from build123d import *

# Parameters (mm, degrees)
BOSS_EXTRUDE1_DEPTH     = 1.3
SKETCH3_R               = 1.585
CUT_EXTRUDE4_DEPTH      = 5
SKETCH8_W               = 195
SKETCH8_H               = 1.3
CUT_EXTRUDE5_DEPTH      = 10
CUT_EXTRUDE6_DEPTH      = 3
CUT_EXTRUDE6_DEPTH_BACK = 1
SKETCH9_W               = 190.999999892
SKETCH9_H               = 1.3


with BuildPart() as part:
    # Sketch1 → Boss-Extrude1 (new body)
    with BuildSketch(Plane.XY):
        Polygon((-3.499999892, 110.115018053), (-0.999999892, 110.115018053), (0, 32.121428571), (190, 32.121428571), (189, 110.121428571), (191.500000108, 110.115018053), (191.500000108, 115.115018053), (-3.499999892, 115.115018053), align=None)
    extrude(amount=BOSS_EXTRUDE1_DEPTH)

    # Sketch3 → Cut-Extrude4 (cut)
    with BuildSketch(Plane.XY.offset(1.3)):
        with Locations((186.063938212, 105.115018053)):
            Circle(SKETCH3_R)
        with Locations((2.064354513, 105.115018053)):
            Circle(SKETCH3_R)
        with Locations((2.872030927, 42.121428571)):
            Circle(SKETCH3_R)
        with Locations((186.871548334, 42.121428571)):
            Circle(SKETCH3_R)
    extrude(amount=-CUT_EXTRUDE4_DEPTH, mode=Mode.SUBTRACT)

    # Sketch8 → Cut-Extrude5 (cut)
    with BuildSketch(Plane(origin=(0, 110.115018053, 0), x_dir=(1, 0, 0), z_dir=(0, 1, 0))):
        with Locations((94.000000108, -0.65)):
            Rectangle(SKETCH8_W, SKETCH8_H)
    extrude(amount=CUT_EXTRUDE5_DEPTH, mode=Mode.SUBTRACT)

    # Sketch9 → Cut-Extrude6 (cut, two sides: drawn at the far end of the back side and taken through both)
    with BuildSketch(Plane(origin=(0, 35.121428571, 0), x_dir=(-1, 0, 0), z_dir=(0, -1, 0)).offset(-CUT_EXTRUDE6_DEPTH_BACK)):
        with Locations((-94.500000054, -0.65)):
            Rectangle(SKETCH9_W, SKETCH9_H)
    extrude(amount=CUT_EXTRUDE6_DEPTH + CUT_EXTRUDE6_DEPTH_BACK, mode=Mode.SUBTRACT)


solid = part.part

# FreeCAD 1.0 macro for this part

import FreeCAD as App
import Part
import Sketcher
Q = App.Units.Quantity

doc = App.newDocument("Part")
params = doc.addObject("Spreadsheet::Sheet", "Params")
for row, (alias, value) in enumerate([
    ("sketch1_width", "190 mm"),
    ("sketch1_width2", "195 mm"),
    ("sketch1_height", "5 mm"),
    ("sketch1_height2", "5 mm"),
    ("sketch1_length", "78 mm"),
    ("pad1_length", "1.3 mm"),
    ("sketch2_diameter", "3.17 mm"),
    ("pocket1_length", "5 mm"),
    ("sketch3_width", "195 mm"),
    ("sketch3_height", "1.3 mm"),
    ("pocket2_length", "10 mm"),
    ("sketch4_width", "191 mm"),
    ("sketch4_height", "1.3 mm"),
    ("pocket3_length", "3 mm"),
    ("pocket3_length2", "1 mm"),
], start=1):
    params.set(f"A{row}", alias)
    params.set(f"B{row}", "=" + value)
    params.setAlias(f"B{row}", alias)

body = doc.addObject("PartDesign::Body", "Body")

# Sketch on XY plane
sketch1 = body.newObject("Sketcher::SketchObject", "Sketch")
sketch1.AttachmentSupport = (doc.getObject("XY_Plane"), [""])
sketch1.MapMode = "FlatFace"
sketch1.addGeometry(Part.LineSegment(App.Vector(-3.5, 110.115018, 0), App.Vector(-1, 110.115018, 0)), False)
sketch1.addGeometry(Part.LineSegment(App.Vector(-1, 110.115018, 0), App.Vector(0, 32.121429, 0)), False)
sketch1.addGeometry(Part.LineSegment(App.Vector(0, 32.121429, 0), App.Vector(190, 32.121429, 0)), False)
sketch1.addGeometry(Part.LineSegment(App.Vector(190, 32.121429, 0), App.Vector(189, 110.121429, 0)), False)
sketch1.addGeometry(Part.LineSegment(App.Vector(189, 110.121429, 0), App.Vector(191.5, 110.115018, 0)), False)
sketch1.addGeometry(Part.LineSegment(App.Vector(191.5, 110.115018, 0), App.Vector(191.5, 115.115018, 0)), False)
sketch1.addGeometry(Part.LineSegment(App.Vector(191.5, 115.115018, 0), App.Vector(-3.5, 115.115018, 0)), False)
sketch1.addGeometry(Part.LineSegment(App.Vector(-3.5, 115.115018, 0), App.Vector(-3.5, 110.115018, 0)), False)
sketch1.addConstraint(Sketcher.Constraint("Coincident", 0, 2, 1, 1))
sketch1.addConstraint(Sketcher.Constraint("Coincident", 1, 2, 2, 1))
sketch1.addConstraint(Sketcher.Constraint("Coincident", 2, 2, 3, 1))
sketch1.addConstraint(Sketcher.Constraint("Coincident", 3, 2, 4, 1))
sketch1.addConstraint(Sketcher.Constraint("Coincident", 4, 2, 5, 1))
sketch1.addConstraint(Sketcher.Constraint("Coincident", 5, 2, 6, 1))
sketch1.addConstraint(Sketcher.Constraint("Coincident", 6, 2, 7, 1))
sketch1.addConstraint(Sketcher.Constraint("Coincident", 7, 2, 0, 1))
sketch1.addConstraint(Sketcher.Constraint("Horizontal", 0))
sketch1.addConstraint(Sketcher.Constraint("Horizontal", 2))
sketch1.addConstraint(Sketcher.Constraint("Vertical", 5))
sketch1.addConstraint(Sketcher.Constraint("Horizontal", 6))
sketch1.addConstraint(Sketcher.Constraint("Vertical", 7))
sketch1.addConstraint(Sketcher.Constraint("PointOnObject", 1, 2, -2))
sketch1.addConstraint(Sketcher.Constraint("DistanceX", 2, 1, 2, 2, Q("190 mm")))
sketch1.addConstraint(Sketcher.Constraint("DistanceX", 6, 2, 6, 1, Q("195 mm")))
sketch1.addConstraint(Sketcher.Constraint("DistanceY", 5, 1, 5, 2, Q("5 mm")))
sketch1.addConstraint(Sketcher.Constraint("DistanceY", 7, 2, 7, 1, Q("5 mm")))
sketch1.addConstraint(Sketcher.Constraint("Distance", 1, Q("78 mm")))
sketch1.addConstraint(Sketcher.Constraint("DistanceX", 0, 1, 0, 2, Q("2.5 mm")))
sketch1.addConstraint(Sketcher.Constraint("DistanceX", 0, 2, -1, 1, Q("1 mm")))
sketch1.addConstraint(Sketcher.Constraint("DistanceX", -1, 1, 3, 2, Q("189 mm")))
sketch1.addConstraint(Sketcher.Constraint("DistanceY", 2, 2, 3, 2, Q("78 mm")))
sketch1.addConstraint(Sketcher.Constraint("DistanceY", -1, 1, 0, 2, Q("110.115018 mm")))
sketch1.setExpression("Constraints[14]", "Params.sketch1_width")
sketch1.setExpression("Constraints[15]", "Params.sketch1_width2")
sketch1.setExpression("Constraints[16]", "Params.sketch1_height")
sketch1.setExpression("Constraints[17]", "Params.sketch1_height2")
sketch1.setExpression("Constraints[18]", "Params.sketch1_length")
pad1 = body.newObject("PartDesign::Pad", "Pad")
pad1.Profile = sketch1
pad1.setExpression("Length", "Params.pad1_length")

# Sketch on XY plane
sketch2 = body.newObject("Sketcher::SketchObject", "Sketch001")
sketch2.AttachmentSupport = (doc.getObject("XY_Plane"), [""])
sketch2.MapMode = "FlatFace"
sketch2.AttachmentOffset = App.Placement(App.Vector(0, 0, 1.3), App.Rotation())
sketch2.addGeometry(Part.Circle(App.Vector(186.1, 105.1, 0), App.Vector(0, 0, 1), 1.6), False)
sketch2.addGeometry(Part.Circle(App.Vector(2.1, 105.1, 0), App.Vector(0, 0, 1), 1.6), False)
sketch2.addGeometry(Part.Circle(App.Vector(2.9, 42.1, 0), App.Vector(0, 0, 1), 1.6), False)
sketch2.addGeometry(Part.Circle(App.Vector(186.9, 42.1, 0), App.Vector(0, 0, 1), 1.6), False)
sketch2.addConstraint(Sketcher.Constraint("Equal", 0, 1))
sketch2.addConstraint(Sketcher.Constraint("Equal", 1, 2))
sketch2.addConstraint(Sketcher.Constraint("Equal", 2, 3))
sketch2.addConstraint(Sketcher.Constraint("Horizontal", 0, 3, 1, 3))
sketch2.addConstraint(Sketcher.Constraint("Horizontal", 2, 3, 3, 3))
sketch2.addConstraint(Sketcher.Constraint("Diameter", 0, Q("3.17 mm")))
sketch2.addConstraint(Sketcher.Constraint("DistanceX", -1, 1, 0, 3, Q("186.063938 mm")))
sketch2.addConstraint(Sketcher.Constraint("DistanceY", -1, 1, 0, 3, Q("105.115018 mm")))
sketch2.addConstraint(Sketcher.Constraint("DistanceX", -1, 1, 2, 3, Q("2.872031 mm")))
sketch2.addConstraint(Sketcher.Constraint("DistanceY", -1, 1, 2, 3, Q("42.121429 mm")))
sketch2.addConstraint(Sketcher.Constraint("DistanceX", -1, 1, 3, 3, Q("186.871548 mm")))
sketch2.addConstraint(Sketcher.Constraint("DistanceX", -1, 1, 1, 3, Q("2.064355 mm")))
sketch2.setExpression("Constraints[5]", "Params.sketch2_diameter")
pocket1 = body.newObject("PartDesign::Pocket", "Pocket")
pocket1.Profile = sketch2
pocket1.setExpression("Length", "Params.pocket1_length")

# Sketch on XZ plane
sketch3 = body.newObject("Sketcher::SketchObject", "Sketch002")
sketch3.AttachmentSupport = (doc.getObject("XZ_Plane"), [""])
sketch3.MapMode = "FlatFace"
sketch3.AttachmentOffset = App.Placement(App.Vector(0, 0, -110.115018), App.Rotation())
sketch3.addGeometry(Part.LineSegment(App.Vector(-3.5, 0, 0), App.Vector(-3.5, 1.3, 0)), False)
sketch3.addGeometry(Part.LineSegment(App.Vector(-3.5, 1.3, 0), App.Vector(191.5, 1.3, 0)), False)
sketch3.addGeometry(Part.LineSegment(App.Vector(191.5, 1.3, 0), App.Vector(191.5, 0, 0)), False)
sketch3.addGeometry(Part.LineSegment(App.Vector(191.5, 0, 0), App.Vector(-3.5, 0, 0)), False)
sketch3.addConstraint(Sketcher.Constraint("Coincident", 0, 2, 1, 1))
sketch3.addConstraint(Sketcher.Constraint("Coincident", 1, 2, 2, 1))
sketch3.addConstraint(Sketcher.Constraint("Coincident", 2, 2, 3, 1))
sketch3.addConstraint(Sketcher.Constraint("Coincident", 3, 2, 0, 1))
sketch3.addConstraint(Sketcher.Constraint("Vertical", 0))
sketch3.addConstraint(Sketcher.Constraint("Horizontal", 1))
sketch3.addConstraint(Sketcher.Constraint("Vertical", 2))
sketch3.addConstraint(Sketcher.Constraint("Horizontal", 3))
sketch3.addConstraint(Sketcher.Constraint("PointOnObject", 2, 2, -1))
sketch3.addConstraint(Sketcher.Constraint("DistanceX", 1, 1, 1, 2, Q("195 mm")))
sketch3.addConstraint(Sketcher.Constraint("DistanceY", 0, 1, 0, 2, Q("1.3 mm")))
sketch3.addConstraint(Sketcher.Constraint("DistanceX", 0, 2, -1, 1, Q("3.5 mm")))
sketch3.setExpression("Constraints[9]", "Params.sketch3_width")
sketch3.setExpression("Constraints[10]", "Params.sketch3_height")
pocket2 = body.newObject("PartDesign::Pocket", "Pocket001")
pocket2.Profile = sketch3
pocket2.setExpression("Length", "Params.pocket2_length")

# Sketch on XZ plane
sketch4 = body.newObject("Sketcher::SketchObject", "Sketch003")
sketch4.AttachmentSupport = (doc.getObject("XZ_Plane"), [""])
sketch4.MapMode = "FlatFace"
sketch4.AttachmentOffset = App.Placement(App.Vector(0, 0, -35.121429), App.Rotation())
sketch4.addGeometry(Part.LineSegment(App.Vector(190, 0, 0), App.Vector(190, 1.3, 0)), False)
sketch4.addGeometry(Part.LineSegment(App.Vector(190, 1.3, 0), App.Vector(-1, 1.3, 0)), False)
sketch4.addGeometry(Part.LineSegment(App.Vector(-1, 1.3, 0), App.Vector(-1, 0, 0)), False)
sketch4.addGeometry(Part.LineSegment(App.Vector(-1, 0, 0), App.Vector(190, 0, 0)), False)
sketch4.addConstraint(Sketcher.Constraint("Coincident", 0, 2, 1, 1))
sketch4.addConstraint(Sketcher.Constraint("Coincident", 1, 2, 2, 1))
sketch4.addConstraint(Sketcher.Constraint("Coincident", 2, 2, 3, 1))
sketch4.addConstraint(Sketcher.Constraint("Coincident", 3, 2, 0, 1))
sketch4.addConstraint(Sketcher.Constraint("Vertical", 0))
sketch4.addConstraint(Sketcher.Constraint("Horizontal", 1))
sketch4.addConstraint(Sketcher.Constraint("Vertical", 2))
sketch4.addConstraint(Sketcher.Constraint("Horizontal", 3))
sketch4.addConstraint(Sketcher.Constraint("PointOnObject", 2, 2, -1))
sketch4.addConstraint(Sketcher.Constraint("DistanceX", 1, 2, 1, 1, Q("191 mm")))
sketch4.addConstraint(Sketcher.Constraint("DistanceY", 0, 1, 0, 2, Q("1.3 mm")))
sketch4.addConstraint(Sketcher.Constraint("DistanceX", -1, 1, 0, 2, Q("190 mm")))
sketch4.setExpression("Constraints[9]", "Params.sketch4_width")
sketch4.setExpression("Constraints[10]", "Params.sketch4_height")
pocket3 = body.newObject("PartDesign::Pocket", "Pocket002")
pocket3.Profile = sketch4
pocket3.Type = "TwoLengths"
pocket3.setExpression("Length", "Params.pocket3_length")
pocket3.setExpression("Length2", "Params.pocket3_length2")
pocket3.Reversed = True

doc.recompute()
